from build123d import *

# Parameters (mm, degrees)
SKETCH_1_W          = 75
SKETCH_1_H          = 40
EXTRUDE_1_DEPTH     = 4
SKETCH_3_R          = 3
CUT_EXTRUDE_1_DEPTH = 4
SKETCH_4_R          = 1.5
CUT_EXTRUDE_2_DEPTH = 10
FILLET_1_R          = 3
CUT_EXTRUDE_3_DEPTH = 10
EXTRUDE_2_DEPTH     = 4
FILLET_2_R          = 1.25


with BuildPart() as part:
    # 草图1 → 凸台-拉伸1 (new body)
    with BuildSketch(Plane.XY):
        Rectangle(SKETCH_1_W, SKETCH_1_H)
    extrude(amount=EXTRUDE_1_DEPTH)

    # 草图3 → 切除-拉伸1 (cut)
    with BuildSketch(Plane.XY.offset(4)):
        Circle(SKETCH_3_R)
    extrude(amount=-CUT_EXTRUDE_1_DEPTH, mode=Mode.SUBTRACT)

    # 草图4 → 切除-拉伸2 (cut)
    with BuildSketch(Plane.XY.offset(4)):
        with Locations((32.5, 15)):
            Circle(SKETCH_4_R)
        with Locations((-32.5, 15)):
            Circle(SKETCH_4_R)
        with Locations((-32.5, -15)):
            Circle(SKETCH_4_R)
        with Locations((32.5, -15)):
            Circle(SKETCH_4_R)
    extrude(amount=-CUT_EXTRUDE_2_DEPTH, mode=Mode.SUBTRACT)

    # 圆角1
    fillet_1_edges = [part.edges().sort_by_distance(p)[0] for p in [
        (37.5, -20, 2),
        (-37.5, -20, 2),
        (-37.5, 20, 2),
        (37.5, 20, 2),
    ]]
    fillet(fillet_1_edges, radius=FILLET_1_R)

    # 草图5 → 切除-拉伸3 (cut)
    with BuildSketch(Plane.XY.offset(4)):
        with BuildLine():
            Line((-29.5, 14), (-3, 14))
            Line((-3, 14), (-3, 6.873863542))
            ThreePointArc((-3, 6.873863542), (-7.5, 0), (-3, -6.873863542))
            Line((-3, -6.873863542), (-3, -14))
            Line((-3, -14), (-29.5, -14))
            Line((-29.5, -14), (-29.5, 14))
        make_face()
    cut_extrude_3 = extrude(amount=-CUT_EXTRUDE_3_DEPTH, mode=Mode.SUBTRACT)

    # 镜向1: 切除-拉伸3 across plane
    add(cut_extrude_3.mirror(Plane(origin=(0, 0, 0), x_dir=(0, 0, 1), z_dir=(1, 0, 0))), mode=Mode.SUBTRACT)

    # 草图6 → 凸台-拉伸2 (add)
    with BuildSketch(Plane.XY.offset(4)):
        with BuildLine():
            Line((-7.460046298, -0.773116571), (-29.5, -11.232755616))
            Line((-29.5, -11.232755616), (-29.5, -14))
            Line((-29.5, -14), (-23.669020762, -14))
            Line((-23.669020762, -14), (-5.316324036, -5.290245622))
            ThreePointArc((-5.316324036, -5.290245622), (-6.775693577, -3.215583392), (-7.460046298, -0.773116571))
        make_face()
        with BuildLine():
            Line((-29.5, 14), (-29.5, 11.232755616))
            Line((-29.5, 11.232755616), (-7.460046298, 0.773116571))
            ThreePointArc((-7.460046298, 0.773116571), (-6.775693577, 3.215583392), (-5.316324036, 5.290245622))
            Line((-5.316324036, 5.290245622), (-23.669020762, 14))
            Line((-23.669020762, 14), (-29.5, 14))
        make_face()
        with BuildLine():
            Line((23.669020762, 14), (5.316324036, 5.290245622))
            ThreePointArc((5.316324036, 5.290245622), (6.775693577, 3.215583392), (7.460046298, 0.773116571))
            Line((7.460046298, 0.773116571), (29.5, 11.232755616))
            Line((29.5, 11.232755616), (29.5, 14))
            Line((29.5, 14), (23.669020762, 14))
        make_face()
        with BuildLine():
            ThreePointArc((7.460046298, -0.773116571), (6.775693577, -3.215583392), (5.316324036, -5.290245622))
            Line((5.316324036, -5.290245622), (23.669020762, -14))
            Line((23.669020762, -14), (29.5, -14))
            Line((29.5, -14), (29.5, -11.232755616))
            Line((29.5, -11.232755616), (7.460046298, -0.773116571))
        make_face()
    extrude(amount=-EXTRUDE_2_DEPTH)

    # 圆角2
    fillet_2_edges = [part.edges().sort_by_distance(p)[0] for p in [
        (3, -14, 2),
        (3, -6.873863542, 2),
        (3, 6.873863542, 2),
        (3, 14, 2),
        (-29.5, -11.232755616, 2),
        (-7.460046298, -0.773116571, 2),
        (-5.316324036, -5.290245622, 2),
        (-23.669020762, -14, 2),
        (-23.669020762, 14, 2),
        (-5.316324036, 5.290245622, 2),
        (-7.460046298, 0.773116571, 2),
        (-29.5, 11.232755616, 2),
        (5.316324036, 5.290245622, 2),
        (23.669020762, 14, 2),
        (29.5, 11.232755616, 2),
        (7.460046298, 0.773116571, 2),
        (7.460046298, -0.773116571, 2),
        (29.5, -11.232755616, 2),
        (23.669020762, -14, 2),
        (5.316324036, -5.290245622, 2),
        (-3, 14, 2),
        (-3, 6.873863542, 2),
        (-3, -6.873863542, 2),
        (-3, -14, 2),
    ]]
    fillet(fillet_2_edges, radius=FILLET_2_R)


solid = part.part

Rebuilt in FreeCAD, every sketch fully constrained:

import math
import FreeCAD as App
import Part
import Sketcher
from FreeCAD import Vector


def edges_at(feature, points):
    """Names of the edges that pass closest to the given points."""
    edges = feature.Shape.Edges
    near = lambda p: min(range(len(edges)), key=lambda i: edges[i].distToShape(Part.Vertex(*p))[0])
    return sorted({f"Edge{near(p) + 1}" for p in points})


def add_polygon(sketch, points):
    """Adds a closed chain of lines whose ends are joined by coincident constraints."""
    first, n = sketch.GeometryCount, len(points)
    for a, b in zip(points, points[1:] + points[:1]):
        sketch.addGeometry(Part.LineSegment(App.Vector(*a, 0), App.Vector(*b, 0)), False)
    for i in range(n):
        sketch.addConstraint(Sketcher.Constraint("Coincident", first + i, 2, first + (i + 1) % n, 1))

doc = App.newDocument("Part")
params = doc.addObject("Spreadsheet::Sheet", "Params")
for row, (alias, value) in enumerate([
    ("sketch1_width", "75 mm"),
    ("sketch1_height", "40 mm"),
    ("pad1_length", "4 mm"),
    ("sketch2_diameter", "6 mm"),
    ("pocket1_length", "4 mm"),
    ("sketch3_diameter", "3 mm"),
    ("pocket2_length", "10 mm"),
    ("fillet_radius", "3 mm"),
    ("sketch4_radius", "7.5 mm"),
    ("sketch4_height", "28 mm"),
    ("sketch4_width", "26.5 mm"),
    ("pocket3_length", "10 mm"),
    ("sketch5_radius", "7.5 mm"),
    ("pad2_length", "4 mm"),
    ("fillet2_radius", "1.25 mm"),
], start=1):
    params.set(f"A{row}", alias)
    params.set(f"B{row}", "=" + value)
    params.setAlias(f"B{row}", alias)

body = doc.addObject("PartDesign::Body", "Body")

# Sketch on XY plane
sketch1 = body.newObject("Sketcher::SketchObject", "Sketch")
sketch1.AttachmentSupport = (doc.getObject("XY_Plane"), [""])
sketch1.MapMode = "FlatFace"
add_polygon(sketch1, [(-38, 20), (-38, -20), (38, -20), (38, 20)])  # lines 0-3
sketch1.addConstraint(Sketcher.Constraint("Vertical", 0))
sketch1.addConstraint(Sketcher.Constraint("Horizontal", 1))
sketch1.addConstraint(Sketcher.Constraint("Vertical", 2))
sketch1.addConstraint(Sketcher.Constraint("Horizontal", 3))
sketch1.addConstraint(Sketcher.Constraint("Symmetric", 0, 2, 2, 2, -1, 1))
sketch1.addConstraint(Sketcher.Constraint("DistanceX", 1, 1, 1, 2, 75.0))
sketch1.addConstraint(Sketcher.Constraint("DistanceY", 0, 2, 0, 1, 40.0))
sketch1.setExpression("Constraints[9]", "Params.sketch1_width")
sketch1.setExpression("Constraints[10]", "Params.sketch1_height")
pad1 = body.newObject("PartDesign::Pad", "Pad")
pad1.Profile = sketch1
pad1.setExpression("Length", "Params.pad1_length")

# Sketch on XY plane
sketch2 = body.newObject("Sketcher::SketchObject", "Sketch001")
sketch2.AttachmentSupport = (doc.getObject("XY_Plane"), [""])
sketch2.MapMode = "FlatFace"
sketch2.AttachmentOffset = App.Placement(Vector(0, 0, 4), App.Rotation())
sketch2.addGeometry(Part.Circle(Vector(0, 0, 0), Vector(0, 0, 1), 3), False)
sketch2.addConstraint(Sketcher.Constraint("Coincident", 0, 3, -1, 1))
sketch2.addConstraint(Sketcher.Constraint("Diameter", 0, 6.0))
sketch2.setExpression("Constraints[1]", "Params.sketch2_diameter")
pocket1 = body.newObject("PartDesign::Pocket", "Pocket")
pocket1.Profile = sketch2
pocket1.setExpression("Length", "Params.pocket1_length")

# Sketch on XY plane
sketch3 = body.newObject("Sketcher::SketchObject", "Sketch002")
sketch3.AttachmentSupport = (doc.getObject("XY_Plane"), [""])
sketch3.MapMode = "FlatFace"
sketch3.AttachmentOffset = App.Placement(Vector(0, 0, 4), App.Rotation())
sketch3.addGeometry(Part.Circle(Vector(32.5, 15, 0), Vector(0, 0, 1), 1.5), False)
sketch3.addGeometry(Part.Circle(Vector(-32.5, 15, 0), Vector(0, 0, 1), 1.5), False)
sketch3.addGeometry(Part.Circle(Vector(-32.5, -15, 0), Vector(0, 0, 1), 1.5), False)
sketch3.addGeometry(Part.Circle(Vector(32.5, -15, 0), Vector(0, 0, 1), 1.5), False)
sketch3.addConstraint(Sketcher.Constraint("Equal", 0, 1))
sketch3.addConstraint(Sketcher.Constraint("Equal", 1, 2))
sketch3.addConstraint(Sketcher.Constraint("Equal", 2, 3))
sketch3.addConstraint(Sketcher.Constraint("Symmetric", 0, 3, 2, 3, -1, 1))
sketch3.addConstraint(Sketcher.Constraint("Symmetric", 1, 3, 3, 3, -1, 1))
sketch3.addConstraint(Sketcher.Constraint("Symmetric", 0, 3, 1, 3, -2))
sketch3.addConstraint(Sketcher.Constraint("Diameter", 0, 3.0))
sketch3.addConstraint(Sketcher.Constraint("DistanceY", -1, 1, 0, 3, 15.0))
sketch3.addConstraint(Sketcher.Constraint("DistanceX", 1, 3, 0, 3, 65.0))
sketch3.setExpression("Constraints[6]", "Params.sketch3_diameter")
pocket2 = body.newObject("PartDesign::Pocket", "Pocket001")
pocket2.Profile = sketch3
pocket2.setExpression("Length", "Params.pocket2_length")
doc.recompute()

fillet = body.newObject("PartDesign::Fillet", "Fillet")
fillet.Base = (pocket2, edges_at(pocket2, [
    (37.5, -20, 2),
    (-37.5, -20, 2),
    (-37.5, 20, 2),
    (37.5, 20, 2),
]))
fillet.setExpression("Radius", "Params.fillet_radius")

# Sketch on XY plane
sketch4 = body.newObject("Sketcher::SketchObject", "Sketch003")
sketch4.AttachmentSupport = (doc.getObject("XY_Plane"), [""])
sketch4.MapMode = "FlatFace"
sketch4.AttachmentOffset = App.Placement(Vector(0, 0, 4), App.Rotation())
sketch4.addGeometry(Part.LineSegment(Vector(-3, 14, 0), Vector(-30, 14, 0)), False)
sketch4.addGeometry(Part.LineSegment(Vector(-30, 14, 0), Vector(-30, -14, 0)), False)
sketch4.addGeometry(Part.LineSegment(Vector(-30, -14, 0), Vector(-3, -14, 0)), False)
sketch4.addGeometry(Part.LineSegment(Vector(-3, -14, 0), Vector(-3, -7, 0)), False)
sketch4.addGeometry(Part.ArcOfCircle(Part.Circle(Vector(0, 0, 0), Vector(0, 0, 1), 7), math.radians(114), math.radians(246)), False)
sketch4.addGeometry(Part.LineSegment(Vector(-3, 7, 0), Vector(-3, 14, 0)), False)
sketch4.addConstraint(Sketcher.Constraint("Coincident", 0, 2, 1, 1))
sketch4.addConstraint(Sketcher.Constraint("Coincident", 1, 2, 2, 1))
sketch4.addConstraint(Sketcher.Constraint("Coincident", 2, 2, 3, 1))
sketch4.addConstraint(Sketcher.Constraint("Coincident", 3, 2, 4, 2))
sketch4.addConstraint(Sketcher.Constraint("Coincident", 4, 1, 5, 1))
sketch4.addConstraint(Sketcher.Constraint("Coincident", 5, 2, 0, 1))
sketch4.addConstraint(Sketcher.Constraint("Horizontal", 0))
sketch4.addConstraint(Sketcher.Constraint("Vertical", 1))
sketch4.addConstraint(Sketcher.Constraint("Horizontal", 2))
sketch4.addConstraint(Sketcher.Constraint("Vertical", 3))
sketch4.addConstraint(Sketcher.Constraint("Vertical", 5))
sketch4.addConstraint(Sketcher.Constraint("Coincident", 4, 3, -1, 1))
sketch4.addConstraint(Sketcher.Constraint("Symmetric", 2, 2, 5, 2, -1))
sketch4.addConstraint(Sketcher.Constraint("Radius", 4, 7.5))
sketch4.addConstraint(Sketcher.Constraint("DistanceY", 1, 2, 1, 1, 28.0))
sketch4.addConstraint(Sketcher.Constraint("DistanceX", 0, 2, 0, 1, 26.5))
sketch4.addConstraint(Sketcher.Constraint("DistanceX", 2, 2, -1, 1, 3.0))
sketch4.setExpression("Constraints[13]", "Params.sketch4_radius")
sketch4.setExpression("Constraints[14]", "Params.sketch4_height")
sketch4.setExpression("Constraints[15]", "Params.sketch4_width")
pocket3 = body.newObject("PartDesign::Pocket", "Pocket002")
pocket3.Profile = sketch4
pocket3.setExpression("Length", "Params.pocket3_length")
doc.recompute()

mirrored = body.newObject("PartDesign::Mirrored", "Mirrored")
mirrored.Originals = [pocket3]
mirrored.MirrorPlane = (doc.getObject("YZ_Plane"), [""])
body.Tip = mirrored

# Sketch on XY plane
sketch5 = body.newObject("Sketcher::SketchObject", "Sketch004")
sketch5.AttachmentSupport = (doc.getObject("XY_Plane"), [""])
sketch5.MapMode = "FlatFace"
sketch5.AttachmentOffset = App.Placement(Vector(0, 0, 4), App.Rotation())
sketch5.addGeometry(Part.LineSegment(Vector(-7.5, -0.8, 0), Vector(-29.5, -11.2, 0)), False)
sketch5.addGeometry(Part.LineSegment(Vector(-29.5, -11.2, 0), Vector(-29.5, -14, 0)), False)
sketch5.addGeometry(Part.LineSegment(Vector(-29.5, -14, 0), Vector(-23.7, -14, 0)), False)
sketch5.addGeometry(Part.LineSegment(Vector(-23.7, -14, 0), Vector(-5.3, -5.3, 0)), False)
sketch5.addGeometry(Part.ArcOfCircle(Part.Circle(Vector(0, 0, 0), Vector(0, 0, 1), 7.5), math.radians(-174), math.radians(-135)), False)
sketch5.addGeometry(Part.LineSegment(Vector(-29.5, 14, 0), Vector(-29.5, 11.2, 0)), False)
sketch5.addGeometry(Part.LineSegment(Vector(-29.5, 11.2, 0), Vector(-7.5, 0.8, 0)), False)
sketch5.addGeometry(Part.ArcOfCircle(Part.Circle(Vector(0, 0, 0), Vector(0, 0, 1), 7.5), math.radians(135), math.radians(174)), False)
sketch5.addGeometry(Part.LineSegment(Vector(-5.3, 5.3, 0), Vector(-23.7, 14, 0)), False)
sketch5.addGeometry(Part.LineSegment(Vector(-23.7, 14, 0), Vector(-29.5, 14, 0)), False)
sketch5.addGeometry(Part.LineSegment(Vector(23.7, 14, 0), Vector(5.3, 5.3, 0)), False)
sketch5.addGeometry(Part.ArcOfCircle(Part.Circle(Vector(0, 0, 0), Vector(0, 0, 1), 7.5), math.radians(6), math.radians(45)), False)
sketch5.addGeometry(Part.LineSegment(Vector(7.5, 0.8, 0), Vector(29.5, 11.2, 0)), False)
sketch5.addGeometry(Part.LineSegment(Vector(29.5, 11.2, 0), Vector(29.5, 14, 0)), False)
sketch5.addGeometry(Part.LineSegment(Vector(29.5, 14, 0), Vector(23.7, 14, 0)), False)
sketch5.addGeometry(Part.ArcOfCircle(Part.Circle(Vector(0, 0, 0), Vector(0, 0, 1), 7.5), math.radians(-45), math.radians(-6)), False)
sketch5.addGeometry(Part.LineSegment(Vector(5.3, -5.3, 0), Vector(23.7, -14, 0)), False)
sketch5.addGeometry(Part.LineSegment(Vector(23.7, -14, 0), Vector(29.5, -14, 0)), False)
sketch5.addGeometry(Part.LineSegment(Vector(29.5, -14, 0), Vector(29.5, -11.2, 0)), False)
sketch5.addGeometry(Part.LineSegment(Vector(29.5, -11.2, 0), Vector(7.5, -0.8, 0)), False)
sketch5.addConstraint(Sketcher.Constraint("Coincident", 0, 2, 1, 1))
sketch5.addConstraint(Sketcher.Constraint("Coincident", 1, 2, 2, 1))
sketch5.addConstraint(Sketcher.Constraint("Coincident", 2, 2, 3, 1))
sketch5.addConstraint(Sketcher.Constraint("Coincident", 3, 2, 4, 2))
sketch5.addConstraint(Sketcher.Constraint("Coincident", 4, 1, 0, 1))
sketch5.addConstraint(Sketcher.Constraint("Coincident", 5, 2, 6, 1))
sketch5.addConstraint(Sketcher.Constraint("Coincident", 6, 2, 7, 2))
sketch5.addConstraint(Sketcher.Constraint("Coincident", 7, 1, 8, 1))
sketch5.addConstraint(Sketcher.Constraint("Coincident", 8, 2, 9, 1))
sketch5.addConstraint(Sketcher.Constraint("Coincident", 9, 2, 5, 1))
sketch5.addConstraint(Sketcher.Constraint("Coincident", 10, 2, 11, 2))
sketch5.addConstraint(Sketcher.Constraint("Coincident", 11, 1, 12, 1))
sketch5.addConstraint(Sketcher.Constraint("Coincident", 12, 2, 13, 1))
sketch5.addConstraint(Sketcher.Constraint("Coincident", 13, 2, 14, 1))
sketch5.addConstraint(Sketcher.Constraint("Coincident", 14, 2, 10, 1))
sketch5.addConstraint(Sketcher.Constraint("Coincident", 15, 1, 16, 1))
sketch5.addConstraint(Sketcher.Constraint("Coincident", 16, 2, 17, 1))
sketch5.addConstraint(Sketcher.Constraint("Coincident", 17, 2, 18, 1))
sketch5.addConstraint(Sketcher.Constraint("Coincident", 18, 2, 19, 1))
sketch5.addConstraint(Sketcher.Constraint("Coincident", 19, 2, 15, 2))
sketch5.addConstraint(Sketcher.Constraint("Vertical", 1))
sketch5.addConstraint(Sketcher.Constraint("Horizontal", 2))
sketch5.addConstraint(Sketcher.Constraint("Vertical", 5))
sketch5.addConstraint(Sketcher.Constraint("Horizontal", 9))
sketch5.addConstraint(Sketcher.Constraint("Vertical", 13))
sketch5.addConstraint(Sketcher.Constraint("Horizontal", 14))
sketch5.addConstraint(Sketcher.Constraint("Horizontal", 17))
sketch5.addConstraint(Sketcher.Constraint("Vertical", 18))
sketch5.addConstraint(Sketcher.Constraint("Coincident", 4, 3, -1, 1))
sketch5.addConstraint(Sketcher.Constraint("Coincident", 7, 3, -1, 1))
sketch5.addConstraint(Sketcher.Constraint("Coincident", 11, 3, -1, 1))
sketch5.addConstraint(Sketcher.Constraint("Coincident", 15, 3, -1, 1))
sketch5.addConstraint(Sketcher.Constraint("Equal", 4, 7))
sketch5.addConstraint(Sketcher.Constraint("Equal", 7, 11))
sketch5.addConstraint(Sketcher.Constraint("Equal", 11, 15))
sketch5.addConstraint(Sketcher.Constraint("Symmetric", 0, 2, 12, 2, -1, 1))
sketch5.addConstraint(Sketcher.Constraint("Symmetric", 2, 2, 14, 2, -1, 1))
sketch5.addConstraint(Sketcher.Constraint("Symmetric", 8, 2, 16, 2, -1, 1))
sketch5.addConstraint(Sketcher.Constraint("Symmetric", 5, 2, 18, 2, -1, 1))
sketch5.addConstraint(Sketcher.Constraint("Symmetric", 5, 2, 12, 2, -2))
sketch5.addConstraint(Sketcher.Constraint("Symmetric", 8, 2, 14, 2, -2))
sketch5.addConstraint(Sketcher.Constraint("Parallel", 0, 3))
sketch5.addConstraint(Sketcher.Constraint("Parallel", 6, 8))
sketch5.addConstraint(Sketcher.Constraint("Parallel", 3, 10))
sketch5.addConstraint(Sketcher.Constraint("Parallel", 10, 12))
sketch5.addConstraint(Sketcher.Constraint("Parallel", 8, 16))
sketch5.addConstraint(Sketcher.Constraint("Parallel", 16, 19))
sketch5.addConstraint(Sketcher.Constraint("Horizontal", 7, 1, 10, 2))
sketch5.addConstraint(Sketcher.Constraint("Radius", 4, 7.5))
sketch5.addConstraint(Sketcher.Constraint("DistanceY", 1, 2, -1, 1, 14.0))
sketch5.addConstraint(Sketcher.Constraint("DistanceX", 0, 2, -1, 1, 29.5))
sketch5.addConstraint(Sketcher.Constraint("DistanceY", 3, 2, 5, 2, 16.523001))
sketch5.addConstraint(Sketcher.Constraint("DistanceX", 2, 1, 2, 2, 5.830979))
sketch5.addConstraint(Sketcher.Constraint("Distance", 3, 20.314559))
sketch5.setExpression("Constraints[48]", "Params.sketch5_radius")
pad2 = body.newObject("PartDesign::Pad", "Pad001")
pad2.Profile = sketch5
pad2.setExpression("Length", "Params.pad2_length")
pad2.Reversed = True
doc.recompute()

fillet2 = body.newObject("PartDesign::Fillet", "Fillet001")
fillet2.Base = (pad2, edges_at(pad2, [
    (3, -14, 2),
    (3, -6.874, 2),
    (3, 6.874, 2),
    (3, 14, 2),
    (-29.5, -11.233, 2),
    (-7.46, -0.773, 2),
    (-5.316, -5.29, 2),
    (-23.669, -14, 2),
    (-23.669, 14, 2),
    (-5.316, 5.29, 2),
    (-7.46, 0.773, 2),
    (-29.5, 11.233, 2),
    (5.316, 5.29, 2),
    (23.669, 14, 2),
    (29.5, 11.233, 2),
    (7.46, 0.773, 2),
    (7.46, -0.773, 2),
    (29.5, -11.233, 2),
    (23.669, -14, 2),
    (5.316, -5.29, 2),
    (-3, 14, 2),
    (-3, 6.874, 2),
    (-3, -6.874, 2),
    (-3, -14, 2),
]))
fillet2.setExpression("Radius", "Params.fillet2_radius")

doc.recompute()
